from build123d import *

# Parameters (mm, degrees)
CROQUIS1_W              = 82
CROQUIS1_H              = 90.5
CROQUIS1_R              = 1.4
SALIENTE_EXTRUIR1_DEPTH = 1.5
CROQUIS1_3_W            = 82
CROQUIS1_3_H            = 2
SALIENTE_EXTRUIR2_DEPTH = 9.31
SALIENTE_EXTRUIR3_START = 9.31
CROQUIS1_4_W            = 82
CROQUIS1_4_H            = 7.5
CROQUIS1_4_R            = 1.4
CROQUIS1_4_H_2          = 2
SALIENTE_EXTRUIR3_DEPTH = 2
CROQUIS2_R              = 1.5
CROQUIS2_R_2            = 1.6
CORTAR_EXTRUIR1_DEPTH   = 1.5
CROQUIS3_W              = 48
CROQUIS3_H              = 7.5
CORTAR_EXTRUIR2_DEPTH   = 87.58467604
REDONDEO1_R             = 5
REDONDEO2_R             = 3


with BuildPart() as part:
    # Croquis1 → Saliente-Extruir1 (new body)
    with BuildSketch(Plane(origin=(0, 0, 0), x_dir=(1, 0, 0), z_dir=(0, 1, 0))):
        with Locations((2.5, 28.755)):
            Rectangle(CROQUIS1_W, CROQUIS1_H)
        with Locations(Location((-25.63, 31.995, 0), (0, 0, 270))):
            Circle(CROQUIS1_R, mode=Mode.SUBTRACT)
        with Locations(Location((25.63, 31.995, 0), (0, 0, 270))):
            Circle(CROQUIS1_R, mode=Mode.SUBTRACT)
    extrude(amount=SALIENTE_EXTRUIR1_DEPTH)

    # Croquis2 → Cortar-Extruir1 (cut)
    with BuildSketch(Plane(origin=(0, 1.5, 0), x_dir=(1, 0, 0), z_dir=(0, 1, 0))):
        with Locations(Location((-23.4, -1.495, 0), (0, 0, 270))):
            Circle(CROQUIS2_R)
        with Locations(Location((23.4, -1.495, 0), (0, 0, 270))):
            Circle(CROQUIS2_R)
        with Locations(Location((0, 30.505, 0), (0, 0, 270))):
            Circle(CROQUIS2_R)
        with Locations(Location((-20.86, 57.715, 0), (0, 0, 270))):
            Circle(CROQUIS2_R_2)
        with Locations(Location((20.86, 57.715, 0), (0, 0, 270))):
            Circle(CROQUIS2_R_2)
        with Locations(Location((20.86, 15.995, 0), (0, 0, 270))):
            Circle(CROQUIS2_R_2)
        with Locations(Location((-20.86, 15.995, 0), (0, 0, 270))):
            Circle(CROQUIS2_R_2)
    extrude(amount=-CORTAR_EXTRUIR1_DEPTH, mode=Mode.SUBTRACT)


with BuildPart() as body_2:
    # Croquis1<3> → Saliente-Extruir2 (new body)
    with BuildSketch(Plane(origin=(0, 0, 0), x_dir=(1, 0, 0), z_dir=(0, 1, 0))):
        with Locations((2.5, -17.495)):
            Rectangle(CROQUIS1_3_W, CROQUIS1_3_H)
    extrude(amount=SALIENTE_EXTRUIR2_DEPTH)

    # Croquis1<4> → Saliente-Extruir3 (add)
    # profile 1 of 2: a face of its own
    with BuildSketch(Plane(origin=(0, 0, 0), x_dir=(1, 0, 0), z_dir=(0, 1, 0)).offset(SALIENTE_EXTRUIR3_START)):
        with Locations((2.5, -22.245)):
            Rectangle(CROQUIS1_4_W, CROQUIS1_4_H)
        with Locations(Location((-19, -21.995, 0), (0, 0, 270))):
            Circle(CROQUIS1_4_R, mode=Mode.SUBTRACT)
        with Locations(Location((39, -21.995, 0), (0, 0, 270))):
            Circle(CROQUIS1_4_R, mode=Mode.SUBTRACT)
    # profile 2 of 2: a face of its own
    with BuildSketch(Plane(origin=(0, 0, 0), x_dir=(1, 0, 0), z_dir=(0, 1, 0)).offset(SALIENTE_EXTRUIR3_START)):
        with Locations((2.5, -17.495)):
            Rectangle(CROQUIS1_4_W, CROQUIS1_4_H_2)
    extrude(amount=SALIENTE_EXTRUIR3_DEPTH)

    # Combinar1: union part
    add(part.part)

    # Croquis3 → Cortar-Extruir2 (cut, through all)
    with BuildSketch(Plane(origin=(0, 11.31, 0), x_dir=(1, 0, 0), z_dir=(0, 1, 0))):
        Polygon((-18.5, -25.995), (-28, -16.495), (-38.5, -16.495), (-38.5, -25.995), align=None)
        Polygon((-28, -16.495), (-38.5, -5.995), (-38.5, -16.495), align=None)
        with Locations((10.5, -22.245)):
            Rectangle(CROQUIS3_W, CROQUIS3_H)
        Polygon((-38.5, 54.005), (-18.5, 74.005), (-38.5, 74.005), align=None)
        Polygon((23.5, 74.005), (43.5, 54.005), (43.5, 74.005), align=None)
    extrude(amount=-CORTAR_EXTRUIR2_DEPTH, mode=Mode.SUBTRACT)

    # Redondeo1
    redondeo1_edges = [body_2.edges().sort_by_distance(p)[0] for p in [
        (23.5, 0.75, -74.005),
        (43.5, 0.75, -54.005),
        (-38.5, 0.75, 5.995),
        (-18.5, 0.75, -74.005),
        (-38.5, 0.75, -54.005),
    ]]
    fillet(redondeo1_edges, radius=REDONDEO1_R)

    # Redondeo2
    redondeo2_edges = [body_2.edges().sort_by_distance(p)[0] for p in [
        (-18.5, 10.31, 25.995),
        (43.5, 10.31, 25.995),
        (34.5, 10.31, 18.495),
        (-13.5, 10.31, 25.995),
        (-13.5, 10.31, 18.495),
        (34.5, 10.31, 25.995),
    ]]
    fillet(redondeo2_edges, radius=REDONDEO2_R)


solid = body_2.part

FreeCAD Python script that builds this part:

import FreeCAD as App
import Part
import Sketcher
Q = App.Units.Quantity


def edges_at(feature, points):
    """Names of the edges that pass closest to the given points."""
    edges = feature.Shape.Edges
    near = lambda p: min(range(len(edges)), key=lambda i: edges[i].distToShape(Part.Vertex(*p))[0])
    return sorted({f"Edge{near(p) + 1}" for p in points})

doc = App.newDocument("Part")
body = doc.addObject("PartDesign::Body", "Body")

sketch1 = doc.addObject("Sketcher::SketchObject", "Sketch")
body.addObject(sketch1)
sketch1.AttachmentSupport = (doc.XZ_Plane, [""])
sketch1.MapMode = "FlatFace"
sketch1.addGeometry(Part.LineSegment(App.Vector(-38.5, -74, 0), App.Vector(-38.5, 16.5, 0)), False)
sketch1.addGeometry(Part.LineSegment(App.Vector(-38.5, 16.5, 0), App.Vector(43.5, 16.5, 0)), False)
sketch1.addGeometry(Part.LineSegment(App.Vector(43.5, 16.5, 0), App.Vector(43.5, -74, 0)), False)
sketch1.addGeometry(Part.LineSegment(App.Vector(43.5, -74, 0), App.Vector(-38.5, -74, 0)), False)
sketch1.addGeometry(Part.Circle(App.Vector(-25.6, -32, 0), App.Vector(0, 0, 1), 1.4), False)
sketch1.addGeometry(Part.Circle(App.Vector(25.6, -32, 0), App.Vector(0, 0, 1), 1.4), False)
sketch1.addConstraint(Sketcher.Constraint("Coincident", 0, 2, 1, 1))
sketch1.addConstraint(Sketcher.Constraint("Coincident", 1, 2, 2, 1))
sketch1.addConstraint(Sketcher.Constraint("Coincident", 2, 2, 3, 1))
sketch1.addConstraint(Sketcher.Constraint("Coincident", 3, 2, 0, 1))
sketch1.addConstraint(Sketcher.Constraint("Vertical", 0))
sketch1.addConstraint(Sketcher.Constraint("Horizontal", 1))
sketch1.addConstraint(Sketcher.Constraint("Vertical", 2))
sketch1.addConstraint(Sketcher.Constraint("Horizontal", 3))
sketch1.addConstraint(Sketcher.Constraint("Equal", 4, 5))
sketch1.addConstraint(Sketcher.Constraint("Symmetric", 4, 3, 5, 3, -2))
sketch1.addConstraint(Sketcher.Constraint("Diameter", 4, Q("2.8 mm")))
sketch1.addConstraint(Sketcher.Constraint("DistanceX", 1, 1, 1, 2, Q("82 mm")))
sketch1.addConstraint(Sketcher.Constraint("DistanceY", 0, 1, 0, 2, Q("90.5 mm")))
sketch1.addConstraint(Sketcher.Constraint("DistanceX", 0, 2, -1, 1, Q("38.5 mm")))
sketch1.addConstraint(Sketcher.Constraint("DistanceX", 4, 3, -1, 1, Q("25.63 mm")))
sketch1.addConstraint(Sketcher.Constraint("DistanceY", 4, 3, 0, 2, Q("48.49 mm")))
sketch1.addConstraint(Sketcher.Constraint("DistanceY", 4, 3, -1, 1, Q("31.995 mm")))
pad1 = doc.addObject("PartDesign::Pad", "Pad")
body.addObject(pad1)
pad1.Profile = sketch1
pad1.Length = 1.5
pad1.Reversed = True

sketch2 = doc.addObject("Sketcher::SketchObject", "Sketch001")
body.addObject(sketch2)
sketch2.AttachmentSupport = (doc.XZ_Plane, [""])
sketch2.MapMode = "FlatFace"
sketch2.AttachmentOffset = App.Placement(App.Vector(0, 0, -1.5), App.Rotation())
sketch2.addGeometry(Part.Circle(App.Vector(-23.4, 1.5, 0), App.Vector(0, 0, 1), 1.5), False)
sketch2.addGeometry(Part.Circle(App.Vector(23.4, 1.5, 0), App.Vector(0, 0, 1), 1.5), False)
sketch2.addGeometry(Part.Circle(App.Vector(0, -30.5, 0), App.Vector(0, 0, 1), 1.5), False)
sketch2.addGeometry(Part.Circle(App.Vector(-20.9, -57.7, 0), App.Vector(0, 0, 1), 1.6), False)
sketch2.addGeometry(Part.Circle(App.Vector(20.9, -57.7, 0), App.Vector(0, 0, 1), 1.6), False)
sketch2.addGeometry(Part.Circle(App.Vector(20.9, -16, 0), App.Vector(0, 0, 1), 1.6), False)
sketch2.addGeometry(Part.Circle(App.Vector(-20.9, -16, 0), App.Vector(0, 0, 1), 1.6), False)
sketch2.addConstraint(Sketcher.Constraint("Equal", 0, 1))
sketch2.addConstraint(Sketcher.Constraint("Equal", 1, 2))
sketch2.addConstraint(Sketcher.Constraint("Equal", 3, 4))
sketch2.addConstraint(Sketcher.Constraint("Equal", 4, 5))
sketch2.addConstraint(Sketcher.Constraint("Equal", 5, 6))
sketch2.addConstraint(Sketcher.Constraint("Symmetric", 0, 3, 1, 3, -2))
sketch2.addConstraint(Sketcher.Constraint("Symmetric", 3, 3, 4, 3, -2))
sketch2.addConstraint(Sketcher.Constraint("Symmetric", 5, 3, 6, 3, -2))
sketch2.addConstraint(Sketcher.Constraint("PointOnObject", 2, 3, -2))
sketch2.addConstraint(Sketcher.Constraint("Vertical", 4, 3, 5, 3))
sketch2.addConstraint(Sketcher.Constraint("Diameter", 0, Q("3 mm")))
sketch2.addConstraint(Sketcher.Constraint("Diameter", 3, Q("3.2 mm")))
sketch2.addConstraint(Sketcher.Constraint("DistanceY", 2, 3, 0, 3, Q("32 mm")))
sketch2.addConstraint(Sketcher.Constraint("DistanceX", 0, 3, -1, 1, Q("23.4 mm")))
sketch2.addConstraint(Sketcher.Constraint("DistanceX", 3, 3, -1, 1, Q("20.86 mm")))
sketch2.addConstraint(Sketcher.Constraint("DistanceY", 3, 3, 2, 3, Q("27.21 mm")))
sketch2.addConstraint(Sketcher.Constraint("DistanceY", 5, 3, 1, 3, Q("17.49 mm")))
sketch2.addConstraint(Sketcher.Constraint("DistanceY", -1, 1, 0, 3, Q("1.495 mm")))
pocket1 = doc.addObject("PartDesign::Pocket", "Pocket")
body.addObject(pocket1)
pocket1.Profile = sketch2
pocket1.Length = 1.5
pocket1.Reversed = True
body2 = doc.addObject("PartDesign::Body", "Body001")

sketch3 = doc.addObject("Sketcher::SketchObject", "Sketch002")
body2.addObject(sketch3)
sketch3.AttachmentSupport = (doc.getObject("XZ_Plane001"), [""])
sketch3.MapMode = "FlatFace"
sketch3.addGeometry(Part.LineSegment(App.Vector(-38.5, 16.5, 0), App.Vector(-38.5, 18.5, 0)), False)
sketch3.addGeometry(Part.LineSegment(App.Vector(-38.5, 18.5, 0), App.Vector(43.5, 18.5, 0)), False)
sketch3.addGeometry(Part.LineSegment(App.Vector(43.5, 18.5, 0), App.Vector(43.5, 16.5, 0)), False)
sketch3.addGeometry(Part.LineSegment(App.Vector(43.5, 16.5, 0), App.Vector(-38.5, 16.5, 0)), False)
sketch3.addConstraint(Sketcher.Constraint("Coincident", 0, 2, 1, 1))
sketch3.addConstraint(Sketcher.Constraint("Coincident", 1, 2, 2, 1))
sketch3.addConstraint(Sketcher.Constraint("Coincident", 2, 2, 3, 1))
sketch3.addConstraint(Sketcher.Constraint("Coincident", 3, 2, 0, 1))
sketch3.addConstraint(Sketcher.Constraint("Vertical", 0))
sketch3.addConstraint(Sketcher.Constraint("Horizontal", 1))
sketch3.addConstraint(Sketcher.Constraint("Vertical", 2))
sketch3.addConstraint(Sketcher.Constraint("Horizontal", 3))
sketch3.addConstraint(Sketcher.Constraint("DistanceX", 1, 1, 1, 2, Q("82 mm")))
sketch3.addConstraint(Sketcher.Constraint("DistanceY", 0, 1, 0, 2, Q("2 mm")))
sketch3.addConstraint(Sketcher.Constraint("DistanceX", 0, 2, -1, 1, Q("38.5 mm")))
sketch3.addConstraint(Sketcher.Constraint("DistanceY", -1, 1, 0, 2, Q("18.495 mm")))
pad2 = doc.addObject("PartDesign::Pad", "Pad001")
body2.addObject(pad2)
pad2.Profile = sketch3
pad2.Length = 9.31
pad2.Reversed = True

sketch4 = doc.addObject("Sketcher::SketchObject", "Sketch003")
body2.addObject(sketch4)
sketch4.AttachmentSupport = (doc.getObject("XZ_Plane001"), [""])
sketch4.MapMode = "FlatFace"
sketch4.AttachmentOffset = App.Placement(App.Vector(0, 0, -9.31), App.Rotation())
sketch4.addGeometry(Part.LineSegment(App.Vector(-38.5, 26, 0), App.Vector(43.5, 26, 0)), False)
sketch4.addGeometry(Part.LineSegment(App.Vector(43.5, 26, 0), App.Vector(43.5, 16.5, 0)), False)
sketch4.addGeometry(Part.LineSegment(App.Vector(43.5, 16.5, 0), App.Vector(-38.5, 16.5, 0)), False)
sketch4.addGeometry(Part.LineSegment(App.Vector(-38.5, 16.5, 0), App.Vector(-38.5, 26, 0)), False)
sketch4.addGeometry(Part.Circle(App.Vector(-19, 22, 0), App.Vector(0, 0, 1), 1.4), False)
sketch4.addGeometry(Part.Circle(App.Vector(39, 22, 0), App.Vector(0, 0, 1), 1.4), False)
sketch4.addConstraint(Sketcher.Constraint("Coincident", 0, 2, 1, 1))
sketch4.addConstraint(Sketcher.Constraint("Coincident", 1, 2, 2, 1))
sketch4.addConstraint(Sketcher.Constraint("Coincident", 2, 2, 3, 1))
sketch4.addConstraint(Sketcher.Constraint("Coincident", 3, 2, 0, 1))
sketch4.addConstraint(Sketcher.Constraint("Horizontal", 0))
sketch4.addConstraint(Sketcher.Constraint("Vertical", 1))
sketch4.addConstraint(Sketcher.Constraint("Horizontal", 2))
sketch4.addConstraint(Sketcher.Constraint("Vertical", 3))
sketch4.addConstraint(Sketcher.Constraint("Equal", 4, 5))
sketch4.addConstraint(Sketcher.Constraint("Horizontal", 4, 3, 5, 3))
sketch4.addConstraint(Sketcher.Constraint("Diameter", 4, Q("2.8 mm")))
sketch4.addConstraint(Sketcher.Constraint("DistanceX", 0, 1, 0, 2, Q("82 mm")))
sketch4.addConstraint(Sketcher.Constraint("DistanceY", 1, 2, 1, 1, Q("9.5 mm")))
sketch4.addConstraint(Sketcher.Constraint("DistanceX", 4, 3, -1, 1, Q("19 mm")))
sketch4.addConstraint(Sketcher.Constraint("DistanceX", -1, 1, 5, 3, Q("39 mm")))
sketch4.addConstraint(Sketcher.Constraint("DistanceY", 5, 3, 0, 2, Q("4 mm")))
sketch4.addConstraint(Sketcher.Constraint("DistanceX", -1, 1, 0, 2, Q("43.5 mm")))
sketch4.addConstraint(Sketcher.Constraint("DistanceY", -1, 1, 4, 3, Q("21.995 mm")))
pad3 = doc.addObject("PartDesign::Pad", "Pad002")
body2.addObject(pad3)
pad3.Profile = sketch4
pad3.Length = 2
pad3.Reversed = True
doc.recompute()

boolean = doc.addObject("PartDesign::Boolean", "Boolean")
body2.addObject(boolean)
boolean.Type = "Fuse"
boolean.addObjects([body])

sketch5 = doc.addObject("Sketcher::SketchObject", "Sketch004")
body2.addObject(sketch5)
sketch5.AttachmentSupport = (doc.getObject("XZ_Plane001"), [""])
sketch5.MapMode = "FlatFace"
sketch5.AttachmentOffset = App.Placement(App.Vector(0, 0, -11.31), App.Rotation())
sketch5.addGeometry(Part.LineSegment(App.Vector(-18, 26, 0), App.Vector(-38, 6, 0)), False)
sketch5.addGeometry(Part.LineSegment(App.Vector(-38, 6, 0), App.Vector(-38, 26, 0)), False)
sketch5.addGeometry(Part.LineSegment(App.Vector(-38, 26, 0), App.Vector(-18, 26, 0)), False)
sketch5.addGeometry(Part.LineSegment(App.Vector(-14, 18, 0), App.Vector(-14, 26, 0)), False)
sketch5.addGeometry(Part.LineSegment(App.Vector(-14, 26, 0), App.Vector(34, 26, 0)), False)
sketch5.addGeometry(Part.LineSegment(App.Vector(34, 26, 0), App.Vector(34, 18, 0)), False)
sketch5.addGeometry(Part.LineSegment(App.Vector(34, 18, 0), App.Vector(-14, 18, 0)), False)
sketch5.addGeometry(Part.LineSegment(App.Vector(-38, -54, 0), App.Vector(-18, -74, 0)), False)
sketch5.addGeometry(Part.LineSegment(App.Vector(-18, -74, 0), App.Vector(-38, -74, 0)), False)
sketch5.addGeometry(Part.LineSegment(App.Vector(-38, -74, 0), App.Vector(-38, -54, 0)), False)
sketch5.addGeometry(Part.LineSegment(App.Vector(24, -74, 0), App.Vector(44, -54, 0)), False)
sketch5.addGeometry(Part.LineSegment(App.Vector(44, -54, 0), App.Vector(44, -74, 0)), False)
sketch5.addGeometry(Part.LineSegment(App.Vector(44, -74, 0), App.Vector(24, -74, 0)), False)
sketch5.addConstraint(Sketcher.Constraint("Coincident", 0, 2, 1, 1))
sketch5.addConstraint(Sketcher.Constraint("Coincident", 1, 2, 2, 1))
sketch5.addConstraint(Sketcher.Constraint("Coincident", 2, 2, 0, 1))
sketch5.addConstraint(Sketcher.Constraint("Coincident", 3, 2, 4, 1))
sketch5.addConstraint(Sketcher.Constraint("Coincident", 4, 2, 5, 1))
sketch5.addConstraint(Sketcher.Constraint("Coincident", 5, 2, 6, 1))
sketch5.addConstraint(Sketcher.Constraint("Coincident", 6, 2, 3, 1))
sketch5.addConstraint(Sketcher.Constraint("Coincident", 7, 2, 8, 1))
sketch5.addConstraint(Sketcher.Constraint("Coincident", 8, 2, 9, 1))
sketch5.addConstraint(Sketcher.Constraint("Coincident", 9, 2, 7, 1))
sketch5.addConstraint(Sketcher.Constraint("Coincident", 10, 2, 11, 1))
sketch5.addConstraint(Sketcher.Constraint("Coincident", 11, 2, 12, 1))
sketch5.addConstraint(Sketcher.Constraint("Coincident", 12, 2, 10, 1))
sketch5.addConstraint(Sketcher.Constraint("Vertical", 1))
sketch5.addConstraint(Sketcher.Constraint("Horizontal", 2))
sketch5.addConstraint(Sketcher.Constraint("Vertical", 3))
sketch5.addConstraint(Sketcher.Constraint("Horizontal", 4))
sketch5.addConstraint(Sketcher.Constraint("Vertical", 5))
sketch5.addConstraint(Sketcher.Constraint("Horizontal", 6))
sketch5.addConstraint(Sketcher.Constraint("Horizontal", 8))
sketch5.addConstraint(Sketcher.Constraint("Vertical", 9))
sketch5.addConstraint(Sketcher.Constraint("Vertical", 11))
sketch5.addConstraint(Sketcher.Constraint("Horizontal", 12))
sketch5.addConstraint(Sketcher.Constraint("Perpendicular", 0, 7))
sketch5.addConstraint(Sketcher.Constraint("Perpendicular", 7, 10))
sketch5.addConstraint(Sketcher.Constraint("Horizontal", 2, 2, 3, 2))
sketch5.addConstraint(Sketcher.Constraint("Horizontal", 9, 2, 10, 2))
sketch5.addConstraint(Sketcher.Constraint("Horizontal", 8, 2, 11, 2))
sketch5.addConstraint(Sketcher.Constraint("Vertical", 2, 2, 7, 2))
sketch5.addConstraint(Sketcher.Constraint("Vertical", 1, 2, 8, 2))
sketch5.addConstraint(Sketcher.Constraint("Equal", 8, 12))
sketch5.addConstraint(Sketcher.Constraint("DistanceX", 2, 1, 2, 2, Q("20 mm")))
sketch5.addConstraint(Sketcher.Constraint("DistanceX", 4, 1, 4, 2, Q("48 mm")))
sketch5.addConstraint(Sketcher.Constraint("DistanceY", 3, 1, 3, 2, Q("7.5 mm")))
sketch5.addConstraint(Sketcher.Constraint("DistanceX", 2, 2, 3, 2, Q("5 mm")))
sketch5.addConstraint(Sketcher.Constraint("DistanceY", 7, 2, 0, 2, Q("80 mm")))
sketch5.addConstraint(Sketcher.Constraint("DistanceX", 7, 2, 10, 2, Q("62 mm")))
sketch5.addConstraint(Sketcher.Constraint("DistanceX", 0, 2, -1, 1, Q("38.5 mm")))
sketch5.addConstraint(Sketcher.Constraint("DistanceY", -1, 1, 0, 2, Q("5.995 mm")))
pocket2 = doc.addObject("PartDesign::Pocket", "Pocket001")
body2.addObject(pocket2)
pocket2.Profile = sketch5
pocket2.Type = "ThroughAll"
pocket2.Reversed = True
doc.recompute()

fillet = doc.addObject("PartDesign::Fillet", "Fillet")
body2.addObject(fillet)
fillet.Base = (pocket2, edges_at(pocket2, [
    (23.5, 0.75, -74.005),
    (43.5, 0.75, -54.005),
    (-38.5, 0.75, 5.995),
    (-18.5, 0.75, -74.005),
    (-38.5, 0.75, -54.005),
]))
fillet.Radius = 5
doc.recompute()

fillet2 = doc.addObject("PartDesign::Fillet", "Fillet001")
body2.addObject(fillet2)
fillet2.Base = (fillet, edges_at(fillet, [
    (-18.5, 10.31, 25.995),
    (43.5, 10.31, 25.995),
    (34.5, 10.31, 18.495),
    (-13.5, 10.31, 25.995),
    (-13.5, 10.31, 18.495),
    (34.5, 10.31, 25.995),
]))
fillet2.Radius = 3

doc.recompute()
